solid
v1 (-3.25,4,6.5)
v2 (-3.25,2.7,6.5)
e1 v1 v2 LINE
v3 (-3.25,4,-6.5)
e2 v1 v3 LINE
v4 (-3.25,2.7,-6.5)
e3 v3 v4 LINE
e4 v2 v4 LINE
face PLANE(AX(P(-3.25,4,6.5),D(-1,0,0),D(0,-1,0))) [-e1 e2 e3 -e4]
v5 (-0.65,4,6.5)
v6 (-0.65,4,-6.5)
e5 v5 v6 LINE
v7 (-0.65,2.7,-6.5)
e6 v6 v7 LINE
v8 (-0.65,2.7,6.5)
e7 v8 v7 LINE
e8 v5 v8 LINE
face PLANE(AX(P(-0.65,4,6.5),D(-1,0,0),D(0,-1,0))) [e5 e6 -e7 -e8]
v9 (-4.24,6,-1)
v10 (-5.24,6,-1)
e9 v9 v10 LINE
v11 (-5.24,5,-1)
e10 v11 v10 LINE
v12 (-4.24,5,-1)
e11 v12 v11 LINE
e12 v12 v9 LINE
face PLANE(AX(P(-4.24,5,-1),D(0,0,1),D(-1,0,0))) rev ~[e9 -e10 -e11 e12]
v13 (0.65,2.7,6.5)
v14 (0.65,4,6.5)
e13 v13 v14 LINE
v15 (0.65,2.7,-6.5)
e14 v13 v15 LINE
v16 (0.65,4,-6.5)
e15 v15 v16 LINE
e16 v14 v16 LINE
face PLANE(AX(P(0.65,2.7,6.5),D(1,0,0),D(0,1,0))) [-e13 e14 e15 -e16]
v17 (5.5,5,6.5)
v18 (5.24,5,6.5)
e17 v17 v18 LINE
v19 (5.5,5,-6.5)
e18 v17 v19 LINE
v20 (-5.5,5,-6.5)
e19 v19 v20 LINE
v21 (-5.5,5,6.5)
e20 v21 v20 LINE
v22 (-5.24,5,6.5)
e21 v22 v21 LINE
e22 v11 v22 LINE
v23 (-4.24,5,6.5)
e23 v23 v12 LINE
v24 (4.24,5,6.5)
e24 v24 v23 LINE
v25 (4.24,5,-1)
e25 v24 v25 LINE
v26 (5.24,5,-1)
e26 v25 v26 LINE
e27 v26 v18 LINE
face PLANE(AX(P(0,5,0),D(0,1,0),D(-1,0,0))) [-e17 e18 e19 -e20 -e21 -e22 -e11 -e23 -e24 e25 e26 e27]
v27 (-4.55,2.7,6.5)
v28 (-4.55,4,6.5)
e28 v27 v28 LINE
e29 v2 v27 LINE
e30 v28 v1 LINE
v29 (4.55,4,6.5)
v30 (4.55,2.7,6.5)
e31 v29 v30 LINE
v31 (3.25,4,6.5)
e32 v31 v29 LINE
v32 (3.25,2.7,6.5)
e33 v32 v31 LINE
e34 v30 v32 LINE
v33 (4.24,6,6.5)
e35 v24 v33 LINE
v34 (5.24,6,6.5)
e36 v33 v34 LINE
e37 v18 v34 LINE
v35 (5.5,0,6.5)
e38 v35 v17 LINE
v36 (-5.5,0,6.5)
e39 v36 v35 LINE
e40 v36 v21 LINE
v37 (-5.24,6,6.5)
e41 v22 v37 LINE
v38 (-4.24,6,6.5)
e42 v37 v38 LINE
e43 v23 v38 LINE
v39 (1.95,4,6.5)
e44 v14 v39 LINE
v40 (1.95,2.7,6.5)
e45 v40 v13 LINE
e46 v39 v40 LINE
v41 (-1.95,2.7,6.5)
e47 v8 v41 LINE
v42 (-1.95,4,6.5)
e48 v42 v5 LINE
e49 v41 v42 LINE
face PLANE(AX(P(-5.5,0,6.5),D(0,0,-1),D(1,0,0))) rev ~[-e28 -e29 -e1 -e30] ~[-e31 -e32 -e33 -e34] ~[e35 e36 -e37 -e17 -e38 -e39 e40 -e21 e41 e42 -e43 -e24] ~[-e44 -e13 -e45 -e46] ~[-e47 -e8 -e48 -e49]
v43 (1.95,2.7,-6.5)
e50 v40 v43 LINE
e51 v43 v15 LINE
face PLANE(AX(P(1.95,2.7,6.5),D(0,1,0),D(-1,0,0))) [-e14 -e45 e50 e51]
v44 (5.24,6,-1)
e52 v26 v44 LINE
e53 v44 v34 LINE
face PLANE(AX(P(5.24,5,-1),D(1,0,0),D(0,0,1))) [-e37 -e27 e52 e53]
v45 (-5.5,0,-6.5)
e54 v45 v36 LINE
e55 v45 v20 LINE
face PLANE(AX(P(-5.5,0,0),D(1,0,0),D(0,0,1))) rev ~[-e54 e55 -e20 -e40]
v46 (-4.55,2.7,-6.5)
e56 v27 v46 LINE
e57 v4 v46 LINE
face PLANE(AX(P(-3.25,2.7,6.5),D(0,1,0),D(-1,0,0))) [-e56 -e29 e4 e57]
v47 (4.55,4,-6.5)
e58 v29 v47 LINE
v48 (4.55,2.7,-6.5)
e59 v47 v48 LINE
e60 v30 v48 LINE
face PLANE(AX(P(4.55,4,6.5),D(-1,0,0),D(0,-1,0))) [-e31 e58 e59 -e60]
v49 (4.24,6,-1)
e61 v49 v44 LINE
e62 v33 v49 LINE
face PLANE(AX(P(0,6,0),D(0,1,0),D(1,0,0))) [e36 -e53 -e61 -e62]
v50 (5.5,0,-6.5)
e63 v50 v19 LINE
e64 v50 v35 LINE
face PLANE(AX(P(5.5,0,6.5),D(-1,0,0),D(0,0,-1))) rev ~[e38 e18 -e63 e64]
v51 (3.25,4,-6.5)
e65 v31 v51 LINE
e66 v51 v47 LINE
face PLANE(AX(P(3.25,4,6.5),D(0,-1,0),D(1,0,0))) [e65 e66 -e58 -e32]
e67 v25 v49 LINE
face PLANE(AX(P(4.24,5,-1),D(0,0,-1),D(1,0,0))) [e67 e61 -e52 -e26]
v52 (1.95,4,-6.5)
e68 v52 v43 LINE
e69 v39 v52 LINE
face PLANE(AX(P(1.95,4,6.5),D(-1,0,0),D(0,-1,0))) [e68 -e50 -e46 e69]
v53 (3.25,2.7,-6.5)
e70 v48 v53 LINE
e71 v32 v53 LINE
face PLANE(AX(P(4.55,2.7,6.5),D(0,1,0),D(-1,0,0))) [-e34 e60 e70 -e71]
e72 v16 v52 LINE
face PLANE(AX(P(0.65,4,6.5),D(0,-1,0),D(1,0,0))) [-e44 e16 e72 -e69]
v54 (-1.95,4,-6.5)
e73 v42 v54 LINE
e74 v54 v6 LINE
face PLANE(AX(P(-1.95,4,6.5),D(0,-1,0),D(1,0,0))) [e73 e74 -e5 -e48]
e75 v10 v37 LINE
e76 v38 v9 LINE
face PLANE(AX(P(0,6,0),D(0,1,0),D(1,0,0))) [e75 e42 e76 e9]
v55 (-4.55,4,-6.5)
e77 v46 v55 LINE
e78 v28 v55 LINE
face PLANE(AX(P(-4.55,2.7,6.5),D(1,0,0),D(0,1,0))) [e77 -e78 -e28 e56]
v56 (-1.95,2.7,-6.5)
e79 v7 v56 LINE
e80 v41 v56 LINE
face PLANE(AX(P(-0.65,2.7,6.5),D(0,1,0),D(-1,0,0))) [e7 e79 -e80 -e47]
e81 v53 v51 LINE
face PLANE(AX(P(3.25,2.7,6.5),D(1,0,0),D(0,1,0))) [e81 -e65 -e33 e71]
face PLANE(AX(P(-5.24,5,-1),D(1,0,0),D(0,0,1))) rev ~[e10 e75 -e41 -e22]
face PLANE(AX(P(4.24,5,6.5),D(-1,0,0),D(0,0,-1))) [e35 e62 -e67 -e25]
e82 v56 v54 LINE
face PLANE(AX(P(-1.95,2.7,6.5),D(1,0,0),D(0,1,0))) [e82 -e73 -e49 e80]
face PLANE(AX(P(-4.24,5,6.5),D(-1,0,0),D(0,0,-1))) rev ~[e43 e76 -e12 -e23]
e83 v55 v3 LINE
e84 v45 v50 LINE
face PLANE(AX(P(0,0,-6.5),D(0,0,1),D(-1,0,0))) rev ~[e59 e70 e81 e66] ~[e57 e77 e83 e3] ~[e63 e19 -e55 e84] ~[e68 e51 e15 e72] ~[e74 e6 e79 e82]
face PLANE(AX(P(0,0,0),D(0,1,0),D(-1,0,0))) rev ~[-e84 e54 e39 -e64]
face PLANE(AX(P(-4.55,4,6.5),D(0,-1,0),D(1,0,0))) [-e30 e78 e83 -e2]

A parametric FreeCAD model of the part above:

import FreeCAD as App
import Part
import Sketcher
Q = App.Units.Quantity

doc = App.newDocument("Part")
params = doc.addObject("Spreadsheet::Sheet", "Params")
for row, (alias, value) in enumerate([
    ("sketch1_width", "11 mm"),
    ("sketch1_height", "13 mm"),
    ("pad1_length", "5 mm"),
    ("sketch2_width", "1 mm"),
    ("sketch2_height", "7.5 mm"),
    ("pad2_length", "1 mm"),
    ("sketch3_width", "1.3 mm"),
    ("pocket1_length", "13 mm"),
], start=1):
    params.set(f"A{row}", alias)
    params.set(f"B{row}", "=" + value)
    params.setAlias(f"B{row}", alias)

body = doc.addObject("PartDesign::Body", "Body")

# Sketch on XZ plane
sketch1 = body.newObject("Sketcher::SketchObject", "Sketch")
sketch1.AttachmentSupport = (doc.getObject("XZ_Plane"), [""])
sketch1.MapMode = "FlatFace"
sketch1.addGeometry([
    Part.LineSegment(App.Vector(-6, 6, 0), App.Vector(6, 6, 0)),
    Part.LineSegment(App.Vector(6, 6, 0), App.Vector(6, -6, 0)),
    Part.LineSegment(App.Vector(6, -6, 0), App.Vector(-6, -6, 0)),
    Part.LineSegment(App.Vector(-6, -6, 0), App.Vector(-6, 6, 0)),
], False)
sketch1.addConstraint([
    Sketcher.Constraint("Coincident", 0, 2, 1, 1),
    Sketcher.Constraint("Coincident", 1, 2, 2, 1),
    Sketcher.Constraint("Coincident", 2, 2, 3, 1),
    Sketcher.Constraint("Coincident", 3, 2, 0, 1),
    Sketcher.Constraint("Horizontal", 0),
    Sketcher.Constraint("Vertical", 1),
    Sketcher.Constraint("Horizontal", 2),
    Sketcher.Constraint("Vertical", 3),
    Sketcher.Constraint("Symmetric", 0, 2, 2, 2, -1, 1),
    Sketcher.Constraint("DistanceX", 0, 1, 0, 2, Q("11 mm")),
    Sketcher.Constraint("DistanceY", 1, 2, 1, 1, Q("13 mm")),
])
sketch1.setExpression("Constraints[9]", "Params.sketch1_width")
sketch1.setExpression("Constraints[10]", "Params.sketch1_height")
pad1 = body.newObject("PartDesign::Pad", "Pad")
pad1.Profile = sketch1
pad1.setExpression("Length", "Params.pad1_length")
pad1.Reversed = True

# Sketch on XZ plane
sketch2 = body.newObject("Sketcher::SketchObject", "Sketch001")
sketch2.AttachmentSupport = (doc.getObject("XZ_Plane"), [""])
sketch2.MapMode = "FlatFace"
sketch2.AttachmentOffset = App.Placement(App.Vector(0, 0, -5), App.Rotation())
sketch2.addGeometry([
    Part.LineSegment(App.Vector(-5.2, -1, 0), App.Vector(-5.2, 6.5, 0)),  # 0
    Part.LineSegment(App.Vector(-5.2, 6.5, 0), App.Vector(-4.2, 6.5, 0)),  # 1
    Part.LineSegment(App.Vector(-4.2, 6.5, 0), App.Vector(-4.2, -1, 0)),  # 2
    Part.LineSegment(App.Vector(-4.2, -1, 0), App.Vector(-5.2, -1, 0)),  # 3
    Part.LineSegment(App.Vector(4.2, -1, 0), App.Vector(4.2, 6.5, 0)),  # 4
    Part.LineSegment(App.Vector(4.2, 6.5, 0), App.Vector(5.2, 6.5, 0)),  # 5
    Part.LineSegment(App.Vector(5.2, 6.5, 0), App.Vector(5.2, -1, 0)),  # 6
    Part.LineSegment(App.Vector(5.2, -1, 0), App.Vector(4.2, -1, 0)),  # 7
], False)
sketch2.addConstraint([
    Sketcher.Constraint("Coincident", 0, 2, 1, 1),
    Sketcher.Constraint("Coincident", 1, 2, 2, 1),
    Sketcher.Constraint("Coincident", 2, 2, 3, 1),
    Sketcher.Constraint("Coincident", 3, 2, 0, 1),
    Sketcher.Constraint("Coincident", 4, 2, 5, 1),
    Sketcher.Constraint("Coincident", 5, 2, 6, 1),
    Sketcher.Constraint("Coincident", 6, 2, 7, 1),
    Sketcher.Constraint("Coincident", 7, 2, 4, 1),
    Sketcher.Constraint("Vertical", 0),
    Sketcher.Constraint("Horizontal", 1),
    Sketcher.Constraint("Vertical", 2),
    Sketcher.Constraint("Horizontal", 3),
    Sketcher.Constraint("Vertical", 4),
    Sketcher.Constraint("Horizontal", 5),
    Sketcher.Constraint("Vertical", 6),
    Sketcher.Constraint("Horizontal", 7),
    Sketcher.Constraint("Symmetric", 1, 2, 4, 2, -2),
    Sketcher.Constraint("Symmetric", 3, 2, 6, 2, -2),
    Sketcher.Constraint("DistanceX", 1, 1, 1, 2, Q("1 mm")),
    Sketcher.Constraint("DistanceY", 0, 1, 0, 2, Q("7.5 mm")),
    Sketcher.Constraint("DistanceY", 2, 2, -1, 1, Q("1 mm")),
    Sketcher.Constraint("DistanceX", 0, 2, -1, 1, Q("5.24 mm")),
])
sketch2.setExpression("Constraints[18]", "Params.sketch2_width")
sketch2.setExpression("Constraints[19]", "Params.sketch2_height")
pad2 = body.newObject("PartDesign::Pad", "Pad001")
pad2.Profile = sketch2
pad2.setExpression("Length", "Params.pad2_length")
pad2.Reversed = True

# Sketch on XY plane
sketch3 = body.newObject("Sketcher::SketchObject", "Sketch002")
sketch3.AttachmentSupport = (doc.getObject("XY_Plane"), [""])
sketch3.MapMode = "FlatFace"
sketch3.AttachmentOffset = App.Placement(App.Vector(0, 0, 6.5), App.Rotation())
sketch3.addGeometry([
    Part.LineSegment(App.Vector(-3.2, 4, 0), App.Vector(-4.5, 4, 0)),  # 0
    Part.LineSegment(App.Vector(-4.5, 4, 0), App.Vector(-4.5, 2.7, 0)),  # 1
    Part.LineSegment(App.Vector(-4.5, 2.7, 0), App.Vector(-3.2, 2.7, 0)),  # 2
    Part.LineSegment(App.Vector(-3.2, 2.7, 0), App.Vector(-3.2, 4, 0)),  # 3
    Part.LineSegment(App.Vector(-0.7, 4, 0), App.Vector(-1.9, 4, 0)),  # 4
    Part.LineSegment(App.Vector(-1.9, 4, 0), App.Vector(-1.9, 2.7, 0)),  # 5
    Part.LineSegment(App.Vector(-1.9, 2.7, 0), App.Vector(-0.7, 2.7, 0)),  # 6
    Part.LineSegment(App.Vector(-0.7, 2.7, 0), App.Vector(-0.7, 4, 0)),  # 7
    Part.LineSegment(App.Vector(1.9, 4, 0), App.Vector(0.7, 4, 0)),  # 8
    Part.LineSegment(App.Vector(0.7, 4, 0), App.Vector(0.7, 2.7, 0)),  # 9
    Part.LineSegment(App.Vector(0.7, 2.7, 0), App.Vector(1.9, 2.7, 0)),  # 10
    Part.LineSegment(App.Vector(1.9, 2.7, 0), App.Vector(1.9, 4, 0)),  # 11
    Part.LineSegment(App.Vector(4.5, 4, 0), App.Vector(3.2, 4, 0)),  # 12
    Part.LineSegment(App.Vector(3.2, 4, 0), App.Vector(3.2, 2.7, 0)),  # 13
    Part.LineSegment(App.Vector(3.2, 2.7, 0), App.Vector(4.5, 2.7, 0)),  # 14
    Part.LineSegment(App.Vector(4.5, 2.7, 0), App.Vector(4.5, 4, 0)),  # 15
], False)
sketch3.addConstraint([
    Sketcher.Constraint("Coincident", 0, 2, 1, 1),
    Sketcher.Constraint("Coincident", 1, 2, 2, 1),
    Sketcher.Constraint("Coincident", 2, 2, 3, 1),
    Sketcher.Constraint("Coincident", 3, 2, 0, 1),
    Sketcher.Constraint("Coincident", 4, 2, 5, 1),
    Sketcher.Constraint("Coincident", 5, 2, 6, 1),
    Sketcher.Constraint("Coincident", 6, 2, 7, 1),
    Sketcher.Constraint("Coincident", 7, 2, 4, 1),
    Sketcher.Constraint("Coincident", 8, 2, 9, 1),
    Sketcher.Constraint("Coincident", 9, 2, 10, 1),
    Sketcher.Constraint("Coincident", 10, 2, 11, 1),
    Sketcher.Constraint("Coincident", 11, 2, 8, 1),
    Sketcher.Constraint("Coincident", 12, 2, 13, 1),
    Sketcher.Constraint("Coincident", 13, 2, 14, 1),
    Sketcher.Constraint("Coincident", 14, 2, 15, 1),
    Sketcher.Constraint("Coincident", 15, 2, 12, 1),
    Sketcher.Constraint("Horizontal", 0),
    Sketcher.Constraint("Vertical", 1),
    Sketcher.Constraint("Horizontal", 2),
    Sketcher.Constraint("Vertical", 3),
    Sketcher.Constraint("Horizontal", 4),
    Sketcher.Constraint("Vertical", 5),
    Sketcher.Constraint("Horizontal", 6),
    Sketcher.Constraint("Vertical", 7),
    Sketcher.Constraint("Horizontal", 8),
    Sketcher.Constraint("Vertical", 9),
    Sketcher.Constraint("Horizontal", 10),
    Sketcher.Constraint("Vertical", 11),
    Sketcher.Constraint("Horizontal", 12),
    Sketcher.Constraint("Vertical", 13),
    Sketcher.Constraint("Horizontal", 14),
    Sketcher.Constraint("Vertical", 15),
    Sketcher.Constraint("Symmetric", 7, 2, 8, 2, -2),
    Sketcher.Constraint("Symmetric", 5, 2, 10, 2, -2),
    Sketcher.Constraint("Symmetric", 3, 2, 12, 2, -2),
    Sketcher.Constraint("Symmetric", 1, 2, 14, 2, -2),
    Sketcher.Constraint("Horizontal", 3, 2, 4, 2),
    Sketcher.Constraint("Horizontal", 2, 2, 5, 2),
    Sketcher.Constraint("Equal", 2, 4),
    Sketcher.Constraint("Equal", 14, 1),
    Sketcher.Constraint("DistanceX", 0, 2, 0, 1, Q("1.3 mm")),
    Sketcher.Constraint("DistanceX", 3, 2, 4, 2, Q("1.3 mm")),
    Sketcher.Constraint("DistanceX", 7, 2, 8, 2, Q("1.3 mm")),
    Sketcher.Constraint("DistanceY", -1, 1, 0, 2, Q("4 mm")),
])
sketch3.setExpression("Constraints[40]", "Params.sketch3_width")
pocket1 = body.newObject("PartDesign::Pocket", "Pocket")
pocket1.Profile = sketch3
pocket1.setExpression("Length", "Params.pocket1_length")

doc.recompute()
